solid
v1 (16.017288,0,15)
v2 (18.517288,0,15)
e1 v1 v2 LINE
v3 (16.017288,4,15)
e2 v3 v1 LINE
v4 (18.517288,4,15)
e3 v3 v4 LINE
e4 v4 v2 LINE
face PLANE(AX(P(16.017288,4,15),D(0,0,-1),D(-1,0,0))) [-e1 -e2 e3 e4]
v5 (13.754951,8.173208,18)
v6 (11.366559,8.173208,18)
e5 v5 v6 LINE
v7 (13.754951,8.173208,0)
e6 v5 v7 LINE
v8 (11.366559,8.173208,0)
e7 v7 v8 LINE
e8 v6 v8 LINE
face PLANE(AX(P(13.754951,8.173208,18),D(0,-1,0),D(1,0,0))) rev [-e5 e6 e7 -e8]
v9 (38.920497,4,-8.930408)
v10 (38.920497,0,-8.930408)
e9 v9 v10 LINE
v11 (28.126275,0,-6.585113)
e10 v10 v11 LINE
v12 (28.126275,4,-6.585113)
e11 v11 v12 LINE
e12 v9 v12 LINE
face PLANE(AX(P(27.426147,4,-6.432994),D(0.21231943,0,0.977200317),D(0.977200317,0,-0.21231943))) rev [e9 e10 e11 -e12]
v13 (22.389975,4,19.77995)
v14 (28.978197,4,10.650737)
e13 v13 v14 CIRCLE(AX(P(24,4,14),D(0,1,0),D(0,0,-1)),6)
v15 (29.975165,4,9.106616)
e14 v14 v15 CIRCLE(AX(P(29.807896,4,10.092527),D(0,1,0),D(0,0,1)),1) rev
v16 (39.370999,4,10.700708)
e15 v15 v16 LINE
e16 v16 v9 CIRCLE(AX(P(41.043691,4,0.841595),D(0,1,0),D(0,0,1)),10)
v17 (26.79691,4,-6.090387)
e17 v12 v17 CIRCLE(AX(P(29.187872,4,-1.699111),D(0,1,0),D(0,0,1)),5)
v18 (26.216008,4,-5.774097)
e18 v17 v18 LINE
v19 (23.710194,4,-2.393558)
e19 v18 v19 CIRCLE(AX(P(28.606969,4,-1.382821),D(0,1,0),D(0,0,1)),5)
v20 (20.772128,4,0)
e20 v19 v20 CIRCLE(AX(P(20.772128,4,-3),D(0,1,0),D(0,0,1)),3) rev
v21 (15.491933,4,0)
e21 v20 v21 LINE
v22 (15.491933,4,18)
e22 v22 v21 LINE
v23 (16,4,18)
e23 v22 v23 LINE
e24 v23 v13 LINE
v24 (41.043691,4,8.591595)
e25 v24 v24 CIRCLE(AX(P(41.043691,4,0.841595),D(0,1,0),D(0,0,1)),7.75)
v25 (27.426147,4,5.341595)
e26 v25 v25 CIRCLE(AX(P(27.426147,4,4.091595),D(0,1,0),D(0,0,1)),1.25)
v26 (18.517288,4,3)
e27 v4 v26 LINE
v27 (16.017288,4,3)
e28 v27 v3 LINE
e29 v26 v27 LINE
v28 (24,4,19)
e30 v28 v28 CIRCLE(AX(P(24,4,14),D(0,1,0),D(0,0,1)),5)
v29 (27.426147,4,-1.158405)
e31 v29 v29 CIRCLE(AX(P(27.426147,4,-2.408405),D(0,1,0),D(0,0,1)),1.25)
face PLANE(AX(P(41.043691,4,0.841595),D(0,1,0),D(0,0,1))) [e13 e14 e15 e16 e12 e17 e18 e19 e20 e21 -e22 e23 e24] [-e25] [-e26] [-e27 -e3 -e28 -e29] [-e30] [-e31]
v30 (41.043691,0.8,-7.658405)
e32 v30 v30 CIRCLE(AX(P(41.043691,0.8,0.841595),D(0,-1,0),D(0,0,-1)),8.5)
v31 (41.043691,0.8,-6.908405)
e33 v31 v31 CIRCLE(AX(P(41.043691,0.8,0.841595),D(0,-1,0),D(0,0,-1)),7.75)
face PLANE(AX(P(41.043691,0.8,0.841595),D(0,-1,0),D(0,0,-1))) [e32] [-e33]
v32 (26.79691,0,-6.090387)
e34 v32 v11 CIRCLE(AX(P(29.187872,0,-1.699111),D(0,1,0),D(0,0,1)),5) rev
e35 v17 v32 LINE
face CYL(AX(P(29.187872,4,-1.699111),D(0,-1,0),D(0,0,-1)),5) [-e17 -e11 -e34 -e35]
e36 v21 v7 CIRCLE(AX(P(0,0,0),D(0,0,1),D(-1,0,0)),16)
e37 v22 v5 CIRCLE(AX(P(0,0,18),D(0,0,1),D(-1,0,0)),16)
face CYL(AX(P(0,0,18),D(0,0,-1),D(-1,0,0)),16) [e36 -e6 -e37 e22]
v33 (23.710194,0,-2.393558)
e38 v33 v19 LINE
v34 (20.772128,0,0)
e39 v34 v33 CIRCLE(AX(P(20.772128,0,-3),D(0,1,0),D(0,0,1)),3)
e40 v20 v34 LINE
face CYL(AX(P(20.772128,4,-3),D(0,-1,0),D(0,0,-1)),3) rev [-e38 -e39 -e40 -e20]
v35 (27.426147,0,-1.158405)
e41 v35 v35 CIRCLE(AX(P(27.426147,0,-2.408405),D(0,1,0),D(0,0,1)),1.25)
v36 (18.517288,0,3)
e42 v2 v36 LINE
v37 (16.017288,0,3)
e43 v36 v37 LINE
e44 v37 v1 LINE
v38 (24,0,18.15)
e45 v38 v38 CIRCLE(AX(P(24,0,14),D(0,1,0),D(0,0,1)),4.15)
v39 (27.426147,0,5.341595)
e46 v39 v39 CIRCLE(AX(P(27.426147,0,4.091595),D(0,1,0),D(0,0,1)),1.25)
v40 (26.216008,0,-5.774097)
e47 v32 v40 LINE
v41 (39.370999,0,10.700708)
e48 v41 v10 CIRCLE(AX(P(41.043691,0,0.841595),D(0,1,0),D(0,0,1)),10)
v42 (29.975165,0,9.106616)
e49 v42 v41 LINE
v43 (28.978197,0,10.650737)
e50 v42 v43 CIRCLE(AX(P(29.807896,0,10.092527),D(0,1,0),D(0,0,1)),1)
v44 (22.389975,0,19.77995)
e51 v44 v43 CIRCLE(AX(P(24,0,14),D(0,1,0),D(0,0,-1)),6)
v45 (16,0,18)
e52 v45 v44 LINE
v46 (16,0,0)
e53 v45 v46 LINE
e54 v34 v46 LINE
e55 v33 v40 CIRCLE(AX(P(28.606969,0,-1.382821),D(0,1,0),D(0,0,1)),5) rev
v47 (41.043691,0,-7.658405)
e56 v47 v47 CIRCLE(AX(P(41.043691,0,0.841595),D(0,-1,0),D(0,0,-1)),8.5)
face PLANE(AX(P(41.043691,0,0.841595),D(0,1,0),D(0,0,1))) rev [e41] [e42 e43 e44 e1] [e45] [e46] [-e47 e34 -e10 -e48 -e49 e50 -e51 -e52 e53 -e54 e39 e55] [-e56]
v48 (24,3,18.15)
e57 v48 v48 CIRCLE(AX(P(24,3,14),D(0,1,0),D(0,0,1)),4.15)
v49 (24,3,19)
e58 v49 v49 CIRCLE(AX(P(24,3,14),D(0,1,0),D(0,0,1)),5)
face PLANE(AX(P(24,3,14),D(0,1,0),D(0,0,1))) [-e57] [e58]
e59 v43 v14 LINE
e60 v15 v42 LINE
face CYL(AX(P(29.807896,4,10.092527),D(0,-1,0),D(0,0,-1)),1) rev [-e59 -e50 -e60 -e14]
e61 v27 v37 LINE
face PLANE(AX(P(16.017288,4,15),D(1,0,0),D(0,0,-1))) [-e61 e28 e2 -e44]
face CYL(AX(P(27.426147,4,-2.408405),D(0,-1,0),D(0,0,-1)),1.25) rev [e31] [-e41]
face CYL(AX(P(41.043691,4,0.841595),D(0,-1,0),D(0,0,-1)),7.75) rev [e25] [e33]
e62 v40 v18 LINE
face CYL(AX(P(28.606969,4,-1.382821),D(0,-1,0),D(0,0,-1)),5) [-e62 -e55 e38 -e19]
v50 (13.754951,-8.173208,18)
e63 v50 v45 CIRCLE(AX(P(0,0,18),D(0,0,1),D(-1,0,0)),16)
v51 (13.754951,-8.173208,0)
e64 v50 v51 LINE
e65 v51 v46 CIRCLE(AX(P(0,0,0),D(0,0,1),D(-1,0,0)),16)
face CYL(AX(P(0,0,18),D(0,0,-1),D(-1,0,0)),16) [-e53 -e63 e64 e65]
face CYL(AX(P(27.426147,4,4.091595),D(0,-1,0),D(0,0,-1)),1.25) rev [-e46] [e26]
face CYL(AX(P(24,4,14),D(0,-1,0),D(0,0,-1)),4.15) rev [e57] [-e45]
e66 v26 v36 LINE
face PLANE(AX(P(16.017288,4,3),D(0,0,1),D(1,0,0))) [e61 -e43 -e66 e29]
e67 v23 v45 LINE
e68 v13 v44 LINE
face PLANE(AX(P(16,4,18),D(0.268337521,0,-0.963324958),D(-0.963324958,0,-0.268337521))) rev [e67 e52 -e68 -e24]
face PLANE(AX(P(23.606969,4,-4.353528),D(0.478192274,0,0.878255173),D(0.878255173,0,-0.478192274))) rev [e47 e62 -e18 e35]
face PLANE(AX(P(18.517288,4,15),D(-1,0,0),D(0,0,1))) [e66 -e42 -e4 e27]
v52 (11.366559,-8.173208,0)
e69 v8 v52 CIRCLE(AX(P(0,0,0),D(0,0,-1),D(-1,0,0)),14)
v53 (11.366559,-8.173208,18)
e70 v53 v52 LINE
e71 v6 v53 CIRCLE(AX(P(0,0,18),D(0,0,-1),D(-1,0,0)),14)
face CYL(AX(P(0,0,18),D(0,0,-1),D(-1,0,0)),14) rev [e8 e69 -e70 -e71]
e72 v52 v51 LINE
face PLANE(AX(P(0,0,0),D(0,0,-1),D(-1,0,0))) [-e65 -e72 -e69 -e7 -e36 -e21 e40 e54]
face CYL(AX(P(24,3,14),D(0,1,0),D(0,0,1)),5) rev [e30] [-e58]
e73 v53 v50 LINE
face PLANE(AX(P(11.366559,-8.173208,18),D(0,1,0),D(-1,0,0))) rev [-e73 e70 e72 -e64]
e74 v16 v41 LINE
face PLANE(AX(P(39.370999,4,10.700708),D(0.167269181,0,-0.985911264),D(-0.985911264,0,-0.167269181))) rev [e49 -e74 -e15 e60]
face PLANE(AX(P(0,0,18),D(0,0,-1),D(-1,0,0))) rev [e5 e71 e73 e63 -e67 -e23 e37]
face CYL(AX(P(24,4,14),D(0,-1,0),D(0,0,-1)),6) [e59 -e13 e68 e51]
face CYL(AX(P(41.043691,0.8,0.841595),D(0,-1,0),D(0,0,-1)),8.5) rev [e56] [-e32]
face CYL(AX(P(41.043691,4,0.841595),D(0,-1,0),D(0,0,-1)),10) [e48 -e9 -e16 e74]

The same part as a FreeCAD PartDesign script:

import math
import FreeCAD as App
import Part
import Sketcher
from FreeCAD import Vector


def edges_at(feature, points):
    """Names of the edges that pass closest to the given points."""
    edges = feature.Shape.Edges
    near = lambda p: min(range(len(edges)), key=lambda i: edges[i].distToShape(Part.Vertex(*p))[0])
    return sorted({f"Edge{near(p) + 1}" for p in points})

doc = App.newDocument("Part")
body = doc.addObject("PartDesign::Body", "Body")

# Sketch on XY plane
sketch1 = body.newObject("Sketcher::SketchObject", "Sketch")
sketch1.AttachmentSupport = (doc.getObject("XY_Plane"), [""])
sketch1.MapMode = "FlatFace"
sketch1.addGeometry(Part.LineSegment(Vector(13.8, 8.2, 0), Vector(11.4, 8.2, 0)), False)
sketch1.addGeometry(Part.ArcOfCircle(Part.Circle(Vector(0, 0, 0), Vector(0, 0, 1), 14), math.radians(-36), math.radians(36)), False)
sketch1.addGeometry(Part.LineSegment(Vector(11.4, -8.2, 0), Vector(13.8, -8.2, 0)), False)
sketch1.addGeometry(Part.ArcOfCircle(Part.Circle(Vector(0, 0, 0), Vector(0, 0, 1), 16), math.radians(-31), math.radians(31)), False)
sketch1.addConstraint(Sketcher.Constraint("Coincident", 0, 2, 1, 2))
sketch1.addConstraint(Sketcher.Constraint("Coincident", 1, 1, 2, 1))
sketch1.addConstraint(Sketcher.Constraint("Coincident", 2, 2, 3, 1))
sketch1.addConstraint(Sketcher.Constraint("Coincident", 3, 2, 0, 1))
sketch1.addConstraint(Sketcher.Constraint("Horizontal", 0))
sketch1.addConstraint(Sketcher.Constraint("Horizontal", 2))
sketch1.addConstraint(Sketcher.Constraint("Coincident", 1, 3, -1, 1))
sketch1.addConstraint(Sketcher.Constraint("Coincident", 3, 3, -1, 1))
sketch1.addConstraint(Sketcher.Constraint("Vertical", 0, 2, 1, 1))
sketch1.addConstraint(Sketcher.Constraint("Radius", 1, 14.0))
sketch1.addConstraint(Sketcher.Constraint("Radius", 3, 16.0))
sketch1.addConstraint(Sketcher.Constraint("DistanceX", 0, 2, 0, 1, 2.388391))
pad1 = body.newObject("PartDesign::Pad", "Pad")
pad1.Profile = sketch1
pad1.Length = 18

# Sketch on XZ plane
sketch2 = body.newObject("Sketcher::SketchObject", "Sketch001")
sketch2.AttachmentSupport = (doc.getObject("XZ_Plane"), [""])
sketch2.MapMode = "FlatFace"
sketch2.addGeometry(Part.LineSegment(Vector(14.9, 18, 0), Vector(16, 18, 0)), False)
sketch2.addGeometry(Part.LineSegment(Vector(16, 18, 0), Vector(22.4, 19.8, 0)), False)
sketch2.addGeometry(Part.ArcOfCircle(Part.Circle(Vector(24, 14, 0), Vector(0, 0, 1), 6), math.radians(-66), math.radians(106)), False)
sketch2.addGeometry(Part.LineSegment(Vector(26.4, 8.5, 0), Vector(39.4, 10.7, 0)), False)
sketch2.addGeometry(Part.ArcOfCircle(Part.Circle(Vector(41, 0.8, 0), Vector(0, 0, 1), 10), math.radians(-102), math.radians(100)), False)
sketch2.addGeometry(Part.LineSegment(Vector(38.9, -8.9, 0), Vector(27.4, -6.4, 0)), False)
sketch2.addGeometry(Part.LineSegment(Vector(27.4, -6.4, 0), Vector(23.6, -4.4, 0)), False)
sketch2.addGeometry(Part.LineSegment(Vector(23.6, -4.4, 0), Vector(23.6, 0, 0)), False)
sketch2.addGeometry(Part.LineSegment(Vector(23.6, 0, 0), Vector(14.9, 0, 0)), False)
sketch2.addGeometry(Part.LineSegment(Vector(14.9, 0, 0), Vector(14.9, 18, 0)), False)
sketch2.addGeometry(Part.Circle(Vector(24, 14, 0), Vector(0, 0, 1), 4.2), False)
sketch2.addGeometry(Part.LineSegment(Vector(16, 15, 0), Vector(16, 3, 0)), False)
sketch2.addGeometry(Part.LineSegment(Vector(16, 3, 0), Vector(18.5, 3, 0)), False)
sketch2.addGeometry(Part.LineSegment(Vector(18.5, 3, 0), Vector(18.5, 15, 0)), False)
sketch2.addGeometry(Part.LineSegment(Vector(18.5, 15, 0), Vector(16, 15, 0)), False)
sketch2.addGeometry(Part.Circle(Vector(41, 0.8, 0), Vector(0, 0, 1), 7.8), False)
sketch2.addGeometry(Part.Circle(Vector(27.4, 4.1, 0), Vector(0, 0, 1), 1.2), False)
sketch2.addGeometry(Part.Circle(Vector(27.4, -2.4, 0), Vector(0, 0, 1), 1.2), False)
sketch2.addConstraint(Sketcher.Constraint("Coincident", 0, 2, 1, 1))
sketch2.addConstraint(Sketcher.Constraint("Tangent", 1, 2, 2, 2))
sketch2.addConstraint(Sketcher.Constraint("Coincident", 2, 1, 3, 1))
sketch2.addConstraint(Sketcher.Constraint("Tangent", 3, 2, 4, 2))
sketch2.addConstraint(Sketcher.Constraint("Tangent", 4, 1, 5, 1))
sketch2.addConstraint(Sketcher.Constraint("Coincident", 5, 2, 6, 1))
sketch2.addConstraint(Sketcher.Constraint("Coincident", 6, 2, 7, 1))
sketch2.addConstraint(Sketcher.Constraint("Coincident", 7, 2, 8, 1))
sketch2.addConstraint(Sketcher.Constraint("Coincident", 8, 2, 9, 1))
sketch2.addConstraint(Sketcher.Constraint("Coincident", 9, 2, 0, 1))
sketch2.addConstraint(Sketcher.Constraint("Coincident", 11, 2, 12, 1))
sketch2.addConstraint(Sketcher.Constraint("Coincident", 12, 2, 13, 1))
sketch2.addConstraint(Sketcher.Constraint("Coincident", 13, 2, 14, 1))
sketch2.addConstraint(Sketcher.Constraint("Coincident", 14, 2, 11, 1))
sketch2.addConstraint(Sketcher.Constraint("Horizontal", 0))
sketch2.addConstraint(Sketcher.Constraint("Vertical", 7))
sketch2.addConstraint(Sketcher.Constraint("Horizontal", 8))
sketch2.addConstraint(Sketcher.Constraint("Vertical", 9))
sketch2.addConstraint(Sketcher.Constraint("Vertical", 11))
sketch2.addConstraint(Sketcher.Constraint("Horizontal", 12))
sketch2.addConstraint(Sketcher.Constraint("Vertical", 13))
sketch2.addConstraint(Sketcher.Constraint("Horizontal", 14))
sketch2.addConstraint(Sketcher.Constraint("Coincident", 10, 3, 2, 3))
sketch2.addConstraint(Sketcher.Constraint("Coincident", 15, 3, 4, 3))
sketch2.addConstraint(Sketcher.Constraint("Equal", 16, 17))
sketch2.addConstraint(Sketcher.Constraint("PointOnObject", 7, 2, -1))
sketch2.addConstraint(Sketcher.Constraint("Vertical", 16, 3, 17, 3))
sketch2.addConstraint(Sketcher.Constraint("Vertical", 17, 3, 5, 2))
sketch2.addConstraint(Sketcher.Constraint("Radius", 2, 6.0))
sketch2.addConstraint(Sketcher.Constraint("Radius", 4, 10.0))
sketch2.addConstraint(Sketcher.Constraint("Diameter", 10, 8.3))
sketch2.addConstraint(Sketcher.Constraint("Diameter", 15, 15.5))
sketch2.addConstraint(Sketcher.Constraint("Diameter", 16, 2.5))
sketch2.addConstraint(Sketcher.Constraint("DistanceY", 9, 1, 9, 2, 18.0))
sketch2.addConstraint(Sketcher.Constraint("DistanceY", 11, 2, 11, 1, 12.0))
sketch2.addConstraint(Sketcher.Constraint("DistanceX", 12, 1, 12, 2, 2.5))
sketch2.addConstraint(Sketcher.Constraint("DistanceX", -1, 1, 2, 3, 24.0))
sketch2.addConstraint(Sketcher.Constraint("DistanceY", -1, 1, 2, 3, 14.0))
sketch2.addConstraint(Sketcher.Constraint("DistanceX", -1, 1, 0, 2, 16.0))
sketch2.addConstraint(Sketcher.Constraint("DistanceY", -1, 1, 11, 2, 3.0))
sketch2.addConstraint(Sketcher.Constraint("DistanceY", 17, 3, 16, 3, 6.5))
sketch2.addConstraint(Sketcher.Constraint("DistanceY", 4, 3, 16, 3, 3.25))
sketch2.addConstraint(Sketcher.Constraint("DistanceX", -1, 1, 3, 2, 39.370999))
sketch2.addConstraint(Sketcher.Constraint("DistanceY", 7, 1, 7, 2, 4.353528))
sketch2.addConstraint(Sketcher.Constraint("DistanceX", 9, 2, 1, 2, 7.5125))
sketch2.addConstraint(Sketcher.Constraint("Distance", 5, 11.762532))
sketch2.addConstraint(Sketcher.Constraint("DistanceX", 8, 2, 8, 1, 8.729494))
sketch2.addConstraint(Sketcher.Constraint("DistanceX", -1, 1, 4, 3, 41.043691))
sketch2.addConstraint(Sketcher.Constraint("DistanceY", -1, 1, 2, 1, 8.499511))
sketch2.addConstraint(Sketcher.Constraint("DistanceX", 17, 3, 4, 1, 11.49435))
sketch2.addConstraint(Sketcher.Constraint("DistanceX", 11, 2, 7, 2, 7.589682))
pad2 = body.newObject("PartDesign::Pad", "Pad001")
pad2.Profile = sketch2
pad2.Length = 4
pad2.Reversed = True
doc.recompute()

fillet = body.newObject("PartDesign::Fillet", "Fillet")
fillet.Base = (pad2, edges_at(pad2, [(27.426, 2, -6.433), (23.607, 2, -4.354)]))
fillet.Radius = 5
doc.recompute()

fillet2 = body.newObject("PartDesign::Fillet", "Fillet001")
fillet2.Base = (fillet, edges_at(fillet, [(23.607, 2, 0)]))
fillet2.Radius = 3
doc.recompute()

fillet3 = body.newObject("PartDesign::Fillet", "Fillet002")
fillet3.Base = (fillet2, edges_at(fillet2, [(26.397, 2, 8.5)]))
fillet3.Radius = 1

# Sketch on XZ plane
sketch3 = body.newObject("Sketcher::SketchObject", "Sketch002")
sketch3.AttachmentSupport = (doc.getObject("XZ_Plane"), [""])
sketch3.MapMode = "FlatFace"
sketch3.addGeometry(Part.Circle(Vector(41, 1, 0), Vector(0, 0, 1), 8), False)
sketch3.addConstraint(Sketcher.Constraint("Diameter", 0, 17.0))
sketch3.addConstraint(Sketcher.Constraint("DistanceX", -1, 1, 0, 3, 41.043691))
sketch3.addConstraint(Sketcher.Constraint("DistanceY", -1, 1, 0, 3, 0.841595))
pocket1 = body.newObject("PartDesign::Pocket", "Pocket")
pocket1.Profile = sketch3
pocket1.Length = 0.8

# Sketch on XZ plane
sketch4 = body.newObject("Sketcher::SketchObject", "Sketch003")
sketch4.AttachmentSupport = (doc.getObject("XZ_Plane"), [""])
sketch4.MapMode = "FlatFace"
sketch4.AttachmentOffset = App.Placement(Vector(0, 0, -4), App.Rotation())
sketch4.addGeometry(Part.Circle(Vector(24, 14, 0), Vector(0, 0, 1), 5), False)
sketch4.addConstraint(Sketcher.Constraint("Diameter", 0, 10.0))
sketch4.addConstraint(Sketcher.Constraint("DistanceX", -1, 1, 0, 3, 24.0))
sketch4.addConstraint(Sketcher.Constraint("DistanceY", -1, 1, 0, 3, 14.0))
pocket2 = body.newObject("PartDesign::Pocket", "Pocket001")
pocket2.Profile = sketch4
pocket2.Length = 1
pocket2.Reversed = True

doc.recompute()
